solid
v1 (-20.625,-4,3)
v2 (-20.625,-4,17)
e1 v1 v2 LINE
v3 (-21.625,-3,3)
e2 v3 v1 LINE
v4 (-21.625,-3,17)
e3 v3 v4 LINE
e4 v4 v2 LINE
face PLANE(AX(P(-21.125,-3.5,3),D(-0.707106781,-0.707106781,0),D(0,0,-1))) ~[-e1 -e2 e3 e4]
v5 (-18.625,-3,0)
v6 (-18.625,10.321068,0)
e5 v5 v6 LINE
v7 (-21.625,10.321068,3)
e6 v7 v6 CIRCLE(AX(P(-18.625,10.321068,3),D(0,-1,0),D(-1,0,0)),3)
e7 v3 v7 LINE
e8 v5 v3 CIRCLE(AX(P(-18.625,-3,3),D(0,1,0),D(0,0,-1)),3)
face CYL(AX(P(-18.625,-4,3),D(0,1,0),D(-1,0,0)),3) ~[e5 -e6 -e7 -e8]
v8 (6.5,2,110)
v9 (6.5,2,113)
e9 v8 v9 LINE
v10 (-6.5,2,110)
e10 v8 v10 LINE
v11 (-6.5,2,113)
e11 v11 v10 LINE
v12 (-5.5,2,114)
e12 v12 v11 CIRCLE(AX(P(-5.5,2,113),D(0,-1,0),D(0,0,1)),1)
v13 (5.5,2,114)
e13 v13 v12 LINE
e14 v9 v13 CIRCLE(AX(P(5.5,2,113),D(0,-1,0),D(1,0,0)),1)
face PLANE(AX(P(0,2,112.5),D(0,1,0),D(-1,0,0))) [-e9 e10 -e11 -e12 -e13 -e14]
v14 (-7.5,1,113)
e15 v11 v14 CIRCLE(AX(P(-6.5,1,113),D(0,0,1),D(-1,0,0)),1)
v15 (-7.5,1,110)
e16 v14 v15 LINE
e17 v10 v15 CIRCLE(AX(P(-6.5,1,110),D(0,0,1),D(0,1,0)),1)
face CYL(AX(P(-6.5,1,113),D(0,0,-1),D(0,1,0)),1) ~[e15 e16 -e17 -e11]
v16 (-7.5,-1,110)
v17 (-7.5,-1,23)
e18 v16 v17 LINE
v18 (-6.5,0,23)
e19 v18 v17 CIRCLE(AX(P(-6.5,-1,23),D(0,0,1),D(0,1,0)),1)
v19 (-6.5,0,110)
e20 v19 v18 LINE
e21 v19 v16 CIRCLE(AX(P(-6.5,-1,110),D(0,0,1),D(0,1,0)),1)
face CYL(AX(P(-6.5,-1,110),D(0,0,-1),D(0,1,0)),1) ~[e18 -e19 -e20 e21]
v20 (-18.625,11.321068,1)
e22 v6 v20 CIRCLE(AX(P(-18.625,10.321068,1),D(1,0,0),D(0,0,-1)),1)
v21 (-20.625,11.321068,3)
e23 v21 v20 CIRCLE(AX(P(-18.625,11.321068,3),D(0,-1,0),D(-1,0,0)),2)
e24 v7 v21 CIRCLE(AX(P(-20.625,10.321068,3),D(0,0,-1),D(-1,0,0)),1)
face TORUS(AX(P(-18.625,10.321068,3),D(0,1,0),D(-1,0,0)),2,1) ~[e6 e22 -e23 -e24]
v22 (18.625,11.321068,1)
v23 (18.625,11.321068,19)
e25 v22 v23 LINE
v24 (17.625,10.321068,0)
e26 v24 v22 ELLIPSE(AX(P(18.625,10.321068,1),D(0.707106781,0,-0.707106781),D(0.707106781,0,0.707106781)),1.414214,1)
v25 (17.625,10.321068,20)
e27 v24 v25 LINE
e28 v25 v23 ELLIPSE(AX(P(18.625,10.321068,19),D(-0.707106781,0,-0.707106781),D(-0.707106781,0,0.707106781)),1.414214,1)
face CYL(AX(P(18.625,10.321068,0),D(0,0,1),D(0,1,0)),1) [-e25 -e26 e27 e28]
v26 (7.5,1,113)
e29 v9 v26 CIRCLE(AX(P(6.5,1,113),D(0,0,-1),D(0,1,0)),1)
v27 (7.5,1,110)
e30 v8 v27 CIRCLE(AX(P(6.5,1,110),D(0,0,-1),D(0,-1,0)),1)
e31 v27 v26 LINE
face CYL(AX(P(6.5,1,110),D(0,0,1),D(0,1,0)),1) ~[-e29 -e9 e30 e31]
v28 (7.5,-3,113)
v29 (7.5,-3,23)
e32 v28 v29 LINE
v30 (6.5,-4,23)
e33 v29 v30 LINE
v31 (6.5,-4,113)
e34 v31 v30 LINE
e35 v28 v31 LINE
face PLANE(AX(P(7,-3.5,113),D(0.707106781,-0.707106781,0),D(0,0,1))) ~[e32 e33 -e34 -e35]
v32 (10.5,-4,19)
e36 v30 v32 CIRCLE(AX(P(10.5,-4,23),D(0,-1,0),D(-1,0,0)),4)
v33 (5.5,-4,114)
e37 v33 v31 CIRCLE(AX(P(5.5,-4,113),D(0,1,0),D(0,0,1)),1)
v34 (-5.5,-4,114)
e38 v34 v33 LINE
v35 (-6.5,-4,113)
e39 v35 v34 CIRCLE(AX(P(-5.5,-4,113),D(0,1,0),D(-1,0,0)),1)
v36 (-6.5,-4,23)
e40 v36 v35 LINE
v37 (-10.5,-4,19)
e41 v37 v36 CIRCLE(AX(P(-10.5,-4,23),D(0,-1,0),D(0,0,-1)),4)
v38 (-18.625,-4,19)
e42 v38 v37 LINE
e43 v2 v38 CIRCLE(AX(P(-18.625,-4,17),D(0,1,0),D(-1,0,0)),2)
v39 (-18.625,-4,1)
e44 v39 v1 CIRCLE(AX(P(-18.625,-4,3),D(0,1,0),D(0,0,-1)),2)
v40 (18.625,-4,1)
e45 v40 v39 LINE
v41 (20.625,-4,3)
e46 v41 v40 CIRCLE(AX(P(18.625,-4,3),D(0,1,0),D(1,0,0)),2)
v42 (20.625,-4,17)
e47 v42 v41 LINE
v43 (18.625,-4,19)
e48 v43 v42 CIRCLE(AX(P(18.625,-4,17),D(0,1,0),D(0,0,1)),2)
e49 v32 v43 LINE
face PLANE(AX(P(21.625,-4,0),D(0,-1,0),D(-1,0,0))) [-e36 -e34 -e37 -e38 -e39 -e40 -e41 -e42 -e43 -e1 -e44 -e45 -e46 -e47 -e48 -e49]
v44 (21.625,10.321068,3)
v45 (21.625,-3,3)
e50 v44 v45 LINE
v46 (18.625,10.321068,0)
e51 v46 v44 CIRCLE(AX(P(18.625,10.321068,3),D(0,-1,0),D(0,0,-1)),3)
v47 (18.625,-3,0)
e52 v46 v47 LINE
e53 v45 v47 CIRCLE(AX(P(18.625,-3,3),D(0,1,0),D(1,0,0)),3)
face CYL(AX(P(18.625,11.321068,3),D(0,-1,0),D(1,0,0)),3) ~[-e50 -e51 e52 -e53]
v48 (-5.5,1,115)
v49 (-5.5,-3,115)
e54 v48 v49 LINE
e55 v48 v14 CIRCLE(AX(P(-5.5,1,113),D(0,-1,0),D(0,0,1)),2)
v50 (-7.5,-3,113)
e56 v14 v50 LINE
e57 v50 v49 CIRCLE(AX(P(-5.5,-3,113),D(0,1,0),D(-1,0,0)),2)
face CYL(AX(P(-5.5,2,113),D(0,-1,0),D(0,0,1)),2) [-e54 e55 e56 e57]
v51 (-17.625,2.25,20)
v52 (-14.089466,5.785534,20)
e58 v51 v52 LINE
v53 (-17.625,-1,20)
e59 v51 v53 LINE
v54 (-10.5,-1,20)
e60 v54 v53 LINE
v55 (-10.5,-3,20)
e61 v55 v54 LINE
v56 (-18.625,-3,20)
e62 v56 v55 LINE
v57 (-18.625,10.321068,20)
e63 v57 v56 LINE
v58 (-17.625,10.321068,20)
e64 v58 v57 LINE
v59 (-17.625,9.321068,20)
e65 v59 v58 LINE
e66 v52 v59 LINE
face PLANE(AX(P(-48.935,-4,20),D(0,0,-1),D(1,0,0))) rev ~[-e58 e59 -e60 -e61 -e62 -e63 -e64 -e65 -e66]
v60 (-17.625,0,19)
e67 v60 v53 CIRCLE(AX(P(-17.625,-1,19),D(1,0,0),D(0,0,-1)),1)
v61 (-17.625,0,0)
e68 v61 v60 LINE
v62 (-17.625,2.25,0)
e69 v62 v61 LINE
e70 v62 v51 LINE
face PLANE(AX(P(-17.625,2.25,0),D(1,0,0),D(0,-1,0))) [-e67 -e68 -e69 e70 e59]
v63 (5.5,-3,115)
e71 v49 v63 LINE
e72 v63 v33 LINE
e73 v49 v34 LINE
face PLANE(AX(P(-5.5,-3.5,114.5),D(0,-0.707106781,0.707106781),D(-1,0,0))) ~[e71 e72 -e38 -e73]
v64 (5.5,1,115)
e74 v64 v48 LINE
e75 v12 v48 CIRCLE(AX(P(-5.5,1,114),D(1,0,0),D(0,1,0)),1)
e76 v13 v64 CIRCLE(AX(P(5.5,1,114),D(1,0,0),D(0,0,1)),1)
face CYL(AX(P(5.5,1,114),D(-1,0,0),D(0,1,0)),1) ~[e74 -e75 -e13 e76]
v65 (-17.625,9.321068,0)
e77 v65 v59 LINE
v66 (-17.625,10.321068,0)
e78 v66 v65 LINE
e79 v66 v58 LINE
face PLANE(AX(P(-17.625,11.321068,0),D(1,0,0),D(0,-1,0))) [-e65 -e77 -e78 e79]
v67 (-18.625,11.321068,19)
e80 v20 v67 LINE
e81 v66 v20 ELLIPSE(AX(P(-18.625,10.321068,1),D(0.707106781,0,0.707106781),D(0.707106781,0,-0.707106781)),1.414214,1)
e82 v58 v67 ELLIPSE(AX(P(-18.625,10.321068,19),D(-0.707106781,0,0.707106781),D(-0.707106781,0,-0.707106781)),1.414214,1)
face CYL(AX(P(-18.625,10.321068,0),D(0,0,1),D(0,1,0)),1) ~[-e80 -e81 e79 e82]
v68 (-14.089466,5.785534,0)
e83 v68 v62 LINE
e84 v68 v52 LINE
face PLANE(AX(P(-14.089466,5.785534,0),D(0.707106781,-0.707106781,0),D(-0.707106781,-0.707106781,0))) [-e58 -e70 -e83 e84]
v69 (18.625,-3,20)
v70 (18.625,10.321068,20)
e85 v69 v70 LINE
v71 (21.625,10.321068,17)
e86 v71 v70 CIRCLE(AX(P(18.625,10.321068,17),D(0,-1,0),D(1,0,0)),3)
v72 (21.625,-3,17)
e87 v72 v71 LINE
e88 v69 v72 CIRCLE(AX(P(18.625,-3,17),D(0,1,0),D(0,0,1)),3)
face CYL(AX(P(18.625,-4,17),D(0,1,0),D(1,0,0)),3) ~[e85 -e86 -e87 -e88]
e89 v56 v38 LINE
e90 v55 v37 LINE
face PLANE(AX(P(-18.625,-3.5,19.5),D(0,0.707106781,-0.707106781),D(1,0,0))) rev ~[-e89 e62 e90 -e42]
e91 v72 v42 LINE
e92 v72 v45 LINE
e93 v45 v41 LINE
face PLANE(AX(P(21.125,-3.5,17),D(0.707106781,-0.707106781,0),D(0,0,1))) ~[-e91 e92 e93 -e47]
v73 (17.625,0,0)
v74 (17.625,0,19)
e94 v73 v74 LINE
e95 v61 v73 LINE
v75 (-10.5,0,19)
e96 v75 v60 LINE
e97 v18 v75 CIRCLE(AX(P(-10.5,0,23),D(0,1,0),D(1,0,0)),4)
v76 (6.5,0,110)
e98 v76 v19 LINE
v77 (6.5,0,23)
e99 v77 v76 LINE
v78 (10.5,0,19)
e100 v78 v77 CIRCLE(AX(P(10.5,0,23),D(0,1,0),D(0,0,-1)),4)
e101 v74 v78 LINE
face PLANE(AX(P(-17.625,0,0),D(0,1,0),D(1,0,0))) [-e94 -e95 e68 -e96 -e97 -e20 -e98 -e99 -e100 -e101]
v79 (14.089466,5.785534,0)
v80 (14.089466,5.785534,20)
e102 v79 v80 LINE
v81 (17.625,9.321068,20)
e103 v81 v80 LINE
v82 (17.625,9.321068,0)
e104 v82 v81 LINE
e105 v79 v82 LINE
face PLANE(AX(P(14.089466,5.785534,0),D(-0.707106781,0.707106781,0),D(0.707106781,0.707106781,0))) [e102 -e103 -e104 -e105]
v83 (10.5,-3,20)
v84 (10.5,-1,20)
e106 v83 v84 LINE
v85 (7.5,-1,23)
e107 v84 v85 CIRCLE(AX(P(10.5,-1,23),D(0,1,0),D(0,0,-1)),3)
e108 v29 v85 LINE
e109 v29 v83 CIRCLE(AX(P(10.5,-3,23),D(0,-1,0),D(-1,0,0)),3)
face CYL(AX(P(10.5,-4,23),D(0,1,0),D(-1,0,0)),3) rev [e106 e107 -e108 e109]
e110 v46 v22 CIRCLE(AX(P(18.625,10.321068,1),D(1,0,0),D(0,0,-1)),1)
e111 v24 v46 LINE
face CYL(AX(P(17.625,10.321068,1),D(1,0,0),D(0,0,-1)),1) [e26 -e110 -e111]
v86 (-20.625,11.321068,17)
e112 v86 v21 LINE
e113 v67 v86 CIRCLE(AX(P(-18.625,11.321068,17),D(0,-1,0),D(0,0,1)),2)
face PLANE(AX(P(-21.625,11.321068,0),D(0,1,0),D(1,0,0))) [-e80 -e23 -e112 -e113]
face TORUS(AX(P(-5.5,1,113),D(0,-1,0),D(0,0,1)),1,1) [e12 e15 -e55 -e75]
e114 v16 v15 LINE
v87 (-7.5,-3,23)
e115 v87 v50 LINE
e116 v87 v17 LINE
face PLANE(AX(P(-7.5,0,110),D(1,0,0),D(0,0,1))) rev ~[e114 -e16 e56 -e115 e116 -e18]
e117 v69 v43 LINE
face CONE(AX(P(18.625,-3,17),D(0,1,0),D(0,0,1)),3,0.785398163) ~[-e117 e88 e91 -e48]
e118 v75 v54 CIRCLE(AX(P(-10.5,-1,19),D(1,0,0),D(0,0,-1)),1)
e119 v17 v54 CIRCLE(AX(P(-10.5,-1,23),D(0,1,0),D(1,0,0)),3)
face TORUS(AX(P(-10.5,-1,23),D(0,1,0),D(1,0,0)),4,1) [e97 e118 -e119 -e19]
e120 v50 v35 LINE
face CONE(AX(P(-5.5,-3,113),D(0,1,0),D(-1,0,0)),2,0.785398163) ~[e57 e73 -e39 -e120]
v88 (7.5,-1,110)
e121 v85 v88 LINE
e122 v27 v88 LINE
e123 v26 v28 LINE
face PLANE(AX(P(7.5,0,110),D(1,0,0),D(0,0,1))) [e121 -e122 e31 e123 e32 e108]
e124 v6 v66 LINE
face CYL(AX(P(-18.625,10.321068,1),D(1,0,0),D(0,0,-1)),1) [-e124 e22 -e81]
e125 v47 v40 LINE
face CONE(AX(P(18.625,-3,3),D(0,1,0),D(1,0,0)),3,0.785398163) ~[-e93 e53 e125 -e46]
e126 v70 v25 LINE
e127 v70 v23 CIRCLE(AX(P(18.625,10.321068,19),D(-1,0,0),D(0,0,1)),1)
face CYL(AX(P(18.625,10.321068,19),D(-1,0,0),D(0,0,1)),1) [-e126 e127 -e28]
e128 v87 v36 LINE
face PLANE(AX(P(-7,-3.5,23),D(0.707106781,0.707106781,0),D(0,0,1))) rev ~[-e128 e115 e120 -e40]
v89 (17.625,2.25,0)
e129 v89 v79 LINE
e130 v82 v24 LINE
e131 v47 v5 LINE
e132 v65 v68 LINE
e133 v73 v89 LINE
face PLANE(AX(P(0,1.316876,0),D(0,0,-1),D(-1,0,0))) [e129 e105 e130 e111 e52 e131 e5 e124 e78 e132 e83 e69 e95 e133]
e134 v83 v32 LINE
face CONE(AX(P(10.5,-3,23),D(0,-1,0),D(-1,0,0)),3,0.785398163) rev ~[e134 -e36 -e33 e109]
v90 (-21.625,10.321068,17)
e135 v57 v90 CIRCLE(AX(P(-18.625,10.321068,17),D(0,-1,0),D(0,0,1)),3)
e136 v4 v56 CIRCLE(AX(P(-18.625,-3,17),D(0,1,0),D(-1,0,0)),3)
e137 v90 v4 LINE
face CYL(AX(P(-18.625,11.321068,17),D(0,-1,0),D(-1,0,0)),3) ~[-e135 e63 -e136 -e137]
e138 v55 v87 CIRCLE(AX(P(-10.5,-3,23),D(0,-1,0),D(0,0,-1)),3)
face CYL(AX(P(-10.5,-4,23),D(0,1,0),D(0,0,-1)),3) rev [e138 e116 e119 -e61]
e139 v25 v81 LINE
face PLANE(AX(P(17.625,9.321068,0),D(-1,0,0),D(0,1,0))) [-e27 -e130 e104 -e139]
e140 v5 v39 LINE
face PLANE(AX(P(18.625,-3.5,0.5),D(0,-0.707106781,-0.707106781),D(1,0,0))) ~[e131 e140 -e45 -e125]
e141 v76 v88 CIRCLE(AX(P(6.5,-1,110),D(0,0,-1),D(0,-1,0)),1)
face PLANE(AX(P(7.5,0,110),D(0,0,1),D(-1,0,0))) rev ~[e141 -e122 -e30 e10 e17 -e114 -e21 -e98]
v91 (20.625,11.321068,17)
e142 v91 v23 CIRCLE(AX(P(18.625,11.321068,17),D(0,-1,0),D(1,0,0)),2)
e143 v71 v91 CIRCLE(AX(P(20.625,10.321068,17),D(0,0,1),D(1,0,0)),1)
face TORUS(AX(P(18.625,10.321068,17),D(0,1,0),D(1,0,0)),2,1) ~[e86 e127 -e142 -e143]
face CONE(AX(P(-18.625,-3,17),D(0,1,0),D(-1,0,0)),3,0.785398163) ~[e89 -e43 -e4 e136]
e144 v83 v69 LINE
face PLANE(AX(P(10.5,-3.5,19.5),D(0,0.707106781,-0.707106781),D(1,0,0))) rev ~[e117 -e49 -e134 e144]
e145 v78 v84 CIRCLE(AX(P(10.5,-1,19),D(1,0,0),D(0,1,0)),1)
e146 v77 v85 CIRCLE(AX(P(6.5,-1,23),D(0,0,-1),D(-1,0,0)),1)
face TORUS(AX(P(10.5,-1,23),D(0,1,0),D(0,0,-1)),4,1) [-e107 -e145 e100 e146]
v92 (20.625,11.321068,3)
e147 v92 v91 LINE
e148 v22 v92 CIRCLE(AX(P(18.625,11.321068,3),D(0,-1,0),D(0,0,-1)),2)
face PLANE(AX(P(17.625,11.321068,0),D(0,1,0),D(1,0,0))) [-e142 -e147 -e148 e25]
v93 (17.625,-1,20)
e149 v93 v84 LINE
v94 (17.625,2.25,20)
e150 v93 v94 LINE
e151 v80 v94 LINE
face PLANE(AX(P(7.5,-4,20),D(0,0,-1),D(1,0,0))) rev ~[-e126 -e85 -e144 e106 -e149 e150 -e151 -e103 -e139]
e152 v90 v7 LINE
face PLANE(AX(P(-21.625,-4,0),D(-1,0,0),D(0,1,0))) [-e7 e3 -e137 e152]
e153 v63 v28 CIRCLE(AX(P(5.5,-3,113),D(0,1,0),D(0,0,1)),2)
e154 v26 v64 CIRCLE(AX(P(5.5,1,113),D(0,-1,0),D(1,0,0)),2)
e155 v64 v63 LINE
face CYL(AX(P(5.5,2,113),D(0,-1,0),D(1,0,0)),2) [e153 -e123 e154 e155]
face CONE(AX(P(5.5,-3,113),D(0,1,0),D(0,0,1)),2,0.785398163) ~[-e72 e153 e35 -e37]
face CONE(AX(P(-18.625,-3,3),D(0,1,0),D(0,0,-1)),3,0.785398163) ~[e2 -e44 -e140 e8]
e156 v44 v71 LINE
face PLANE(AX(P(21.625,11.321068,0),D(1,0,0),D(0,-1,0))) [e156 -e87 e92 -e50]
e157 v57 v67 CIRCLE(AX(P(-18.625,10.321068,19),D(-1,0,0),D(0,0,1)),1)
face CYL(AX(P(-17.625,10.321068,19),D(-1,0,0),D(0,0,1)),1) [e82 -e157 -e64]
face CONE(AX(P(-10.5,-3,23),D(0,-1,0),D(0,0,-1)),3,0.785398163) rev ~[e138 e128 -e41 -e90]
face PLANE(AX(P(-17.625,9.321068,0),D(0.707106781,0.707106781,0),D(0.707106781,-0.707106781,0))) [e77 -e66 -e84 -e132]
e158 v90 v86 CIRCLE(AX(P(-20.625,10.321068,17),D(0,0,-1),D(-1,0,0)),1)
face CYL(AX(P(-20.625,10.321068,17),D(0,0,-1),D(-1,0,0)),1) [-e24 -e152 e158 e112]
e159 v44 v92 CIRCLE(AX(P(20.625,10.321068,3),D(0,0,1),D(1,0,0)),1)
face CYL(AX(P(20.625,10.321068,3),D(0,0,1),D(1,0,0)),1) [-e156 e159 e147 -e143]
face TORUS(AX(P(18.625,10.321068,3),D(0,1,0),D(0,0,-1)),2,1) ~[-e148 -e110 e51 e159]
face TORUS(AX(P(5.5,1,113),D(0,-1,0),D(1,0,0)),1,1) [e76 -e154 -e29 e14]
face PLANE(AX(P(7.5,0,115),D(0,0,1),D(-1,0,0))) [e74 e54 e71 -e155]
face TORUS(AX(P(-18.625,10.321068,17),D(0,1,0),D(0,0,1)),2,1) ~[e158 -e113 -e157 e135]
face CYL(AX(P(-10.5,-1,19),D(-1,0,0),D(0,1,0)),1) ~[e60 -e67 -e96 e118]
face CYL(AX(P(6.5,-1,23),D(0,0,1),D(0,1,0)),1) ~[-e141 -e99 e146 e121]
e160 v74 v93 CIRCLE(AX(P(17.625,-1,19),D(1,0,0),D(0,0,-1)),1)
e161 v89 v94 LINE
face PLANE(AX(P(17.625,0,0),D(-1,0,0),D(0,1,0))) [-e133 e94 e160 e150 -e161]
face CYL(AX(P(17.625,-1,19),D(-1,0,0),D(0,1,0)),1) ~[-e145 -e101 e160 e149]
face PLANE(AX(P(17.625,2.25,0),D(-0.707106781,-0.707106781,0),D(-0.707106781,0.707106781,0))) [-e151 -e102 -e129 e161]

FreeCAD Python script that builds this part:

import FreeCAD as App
import Part
import Sketcher
Q = App.Units.Quantity


def edges_at(feature, points):
    """Names of the edges that pass closest to the given points."""
    edges = feature.Shape.Edges
    near = lambda p: min(range(len(edges)), key=lambda i: edges[i].distToShape(Part.Vertex(*p))[0])
    return sorted({f"Edge{near(p) + 1}" for p in points})


def add_polygon(sketch, points):
    """Adds a closed chain of lines whose ends are joined by coincident constraints."""
    first, n = sketch.GeometryCount, len(points)
    for a, b in zip(points, points[1:] + points[:1]):
        sketch.addGeometry(Part.LineSegment(App.Vector(*a, 0), App.Vector(*b, 0)), False)
    for i in range(n):
        sketch.addConstraint(Sketcher.Constraint("Coincident", first + i, 2, first + (i + 1) % n, 1))

doc = App.newDocument("Part")
body = doc.addObject("PartDesign::Body", "Body")

# Sketch on XY plane
sketch1 = doc.addObject("Sketcher::SketchObject", "Sketch")
body.addObject(sketch1)
sketch1.AttachmentSupport = (doc.XY_Plane, [""])
sketch1.MapMode = "FlatFace"
add_polygon(sketch1, [(17.6, 0), (-17.6, 0), (-17.6, 2.2), (-14.1, 5.8), (-17.6, 9.3), (-17.6, 11.3), (-21.6, 11.3), (-21.6, -4), (21.6, -4), (21.6, 11.3), (17.6, 11.3), (17.6, 9.3), (14.1, 5.8), (17.6, 2.2)])  # lines 0-13
sketch1.addConstraint([
    Sketcher.Constraint("Horizontal", 0),
    Sketcher.Constraint("Vertical", 1),
    Sketcher.Constraint("Vertical", 4),
    Sketcher.Constraint("Horizontal", 5),
    Sketcher.Constraint("Vertical", 6),
    Sketcher.Constraint("Horizontal", 7),
    Sketcher.Constraint("Vertical", 8),
    Sketcher.Constraint("Horizontal", 9),
    Sketcher.Constraint("Vertical", 10),
    Sketcher.Constraint("Vertical", 13),
    Sketcher.Constraint("Symmetric", 0, 2, 13, 2, -1, 1),
    Sketcher.Constraint("Symmetric", 5, 2, 8, 2, -2),
    Sketcher.Constraint("Symmetric", 3, 2, 10, 2, -2),
    Sketcher.Constraint("Symmetric", 2, 2, 11, 2, -2),
    Sketcher.Constraint("Perpendicular", 2, 3),
    Sketcher.Constraint("Perpendicular", 3, 11),
    Sketcher.Constraint("Perpendicular", 11, 12),
    Sketcher.Constraint("Vertical", 1, 2, 3, 2),
    Sketcher.Constraint("DistanceX", 5, 2, 5, 1, Q("4 mm")),
    Sketcher.Constraint("DistanceY", 4, 1, 4, 2, Q("2 mm")),
    Sketcher.Constraint("Distance", 2, Q("5 mm")),
    Sketcher.Constraint("DistanceY", 6, 2, -1, 1, Q("4 mm")),
    Sketcher.Constraint("DistanceX", 0, 2, 0, 1, Q("35.25 mm")),
    Sketcher.Constraint("DistanceY", 1, 1, 1, 2, Q("2.25 mm")),
])
pad1 = doc.addObject("PartDesign::Pad", "Pad")
body.addObject(pad1)
pad1.Profile = sketch1
pad1.Length = 115

# Sketch on XZ plane
sketch2 = doc.addObject("Sketcher::SketchObject", "Sketch001")
body.addObject(sketch2)
sketch2.AttachmentSupport = (doc.XZ_Plane, [""])
sketch2.MapMode = "FlatFace"
sketch2.AttachmentOffset = App.Placement(App.Vector(0, 0, 4), App.Rotation())
add_polygon(sketch2, [(8, 130), (8, 20), (49, 20), (49, 139), (-49, 139), (-49, 20), (-8, 20), (-8, 130)])  # lines 0-7
sketch2.addConstraint([
    Sketcher.Constraint("Vertical", 0),
    Sketcher.Constraint("Horizontal", 1),
    Sketcher.Constraint("Vertical", 2),
    Sketcher.Constraint("Horizontal", 3),
    Sketcher.Constraint("Vertical", 4),
    Sketcher.Constraint("Horizontal", 5),
    Sketcher.Constraint("Vertical", 6),
    Sketcher.Constraint("Horizontal", 7),
    Sketcher.Constraint("Symmetric", 1, 2, 4, 2, -2),
    Sketcher.Constraint("Equal", 1, 5),
    Sketcher.Constraint("DistanceX", 7, 1, 7, 2, Q("15 mm")),
    Sketcher.Constraint("DistanceY", 0, 2, 0, 1, Q("110 mm")),
    Sketcher.Constraint("DistanceY", -1, 1, 0, 2, Q("20 mm")),
    Sketcher.Constraint("DistanceX", 3, 2, 3, 1, Q("97.87 mm")),
    Sketcher.Constraint("DistanceY", 2, 1, 2, 2, Q("119.08 mm")),
])
pocket1 = doc.addObject("PartDesign::Pocket", "Pocket")
body.addObject(pocket1)
pocket1.Profile = sketch2
pocket1.Type = "ThroughAll"

# Sketch on XZ plane
sketch3 = doc.addObject("Sketcher::SketchObject", "Sketch002")
body.addObject(sketch3)
sketch3.AttachmentSupport = (doc.XZ_Plane, [""])
sketch3.MapMode = "FlatFace"
add_polygon(sketch3, [(8, 115), (8, 110), (-8, 110), (-8, 115)])  # lines 0-3
sketch3.addConstraint([
    Sketcher.Constraint("Vertical", 0),
    Sketcher.Constraint("Horizontal", 1),
    Sketcher.Constraint("Vertical", 2),
    Sketcher.Constraint("Horizontal", 3),
    Sketcher.Constraint("DistanceX", 1, 2, 1, 1, Q("15 mm")),
    Sketcher.Constraint("DistanceY", 0, 2, 0, 1, Q("5 mm")),
    Sketcher.Constraint("DistanceY", -1, 1, 0, 2, Q("110 mm")),
    Sketcher.Constraint("DistanceX", -1, 1, 0, 2, Q("7.5 mm")),
])
pad2 = doc.addObject("PartDesign::Pad", "Pad001")
body.addObject(pad2)
pad2.Profile = sketch3
pad2.Length = 2
pad2.Reversed = True
doc.recompute()

fillet = doc.addObject("PartDesign::Fillet", "Fillet")
body.addObject(fillet)
fillet.Base = (pad2, edges_at(pad2, [
    (21.625, 3.661, 20),
    (21.625, 3.661, 0),
    (-21.625, 3.661, 0),
    (-21.625, 3.661, 20),
    (-7.5, -2, 20),
    (7.5, -2, 20),
]))
fillet.Radius = 3
doc.recompute()

fillet2 = doc.addObject("PartDesign::Fillet", "Fillet001")
body.addObject(fillet2)
fillet2.Base = (fillet, edges_at(fillet, [(-7.5, -1, 115), (7.5, -1, 115)]))
fillet2.Radius = 2
doc.recompute()

chamfer = doc.addObject("PartDesign::Chamfer", "Chamfer")
body.addObject(chamfer)
chamfer.Base = (fillet2, edges_at(fillet2, [
    (7.5, -4, 68),
    (6.914, -4, 114.414),
    (8.379, -4, 20.879),
    (0, -4, 115),
    (14.562, -4, 20),
    (-6.914, -4, 114.414),
    (20.746, -4, 19.121),
    (-7.5, -4, 68),
    (21.625, -4, 10),
    (-8.379, -4, 20.879),
    (20.746, -4, 0.879),
    (-14.562, -4, 20),
    (0, -4, 0),
    (-20.746, -4, 19.121),
    (-20.746, -4, 0.879),
    (-21.625, -4, 10),
]))
chamfer.Size = 1
doc.recompute()

fillet3 = doc.addObject("PartDesign::Fillet", "Fillet002")
body.addObject(fillet3)
fillet3.Base = (chamfer, edges_at(chamfer, [(0, 2, 115)]))
fillet3.Radius = 1
doc.recompute()

fillet4 = doc.addObject("PartDesign::Fillet", "Fillet003")
body.addObject(fillet4)
fillet4.Base = (fillet3, edges_at(fillet3, [
    (-18.125, 11.321, 0),
    (-20.746, 11.321, 0.879),
    (-17.625, 11.321, 10),
    (-21.625, 11.321, 10),
    (-18.125, 11.321, 20),
    (-20.746, 11.321, 19.121),
    (18.125, 11.321, 0),
    (20.746, 11.321, 0.879),
    (17.625, 11.321, 10),
    (21.625, 11.321, 10),
    (18.125, 11.321, 20),
    (20.746, 11.321, 19.121),
]))
fillet4.Radius = 1
doc.recompute()

fillet5 = doc.addObject("PartDesign::Fillet", "Fillet004")
body.addObject(fillet5)
fillet5.Base = (fillet4, edges_at(fillet4, [(-7.5, 0, 66.5)]))
fillet5.Radius = 1
doc.recompute()

fillet6 = doc.addObject("PartDesign::Fillet", "Fillet005")
body.addObject(fillet6)
fillet6.Base = (fillet5, edges_at(fillet5, [(7.5, 0, 66.5)]))
fillet6.Radius = 1

doc.recompute()
